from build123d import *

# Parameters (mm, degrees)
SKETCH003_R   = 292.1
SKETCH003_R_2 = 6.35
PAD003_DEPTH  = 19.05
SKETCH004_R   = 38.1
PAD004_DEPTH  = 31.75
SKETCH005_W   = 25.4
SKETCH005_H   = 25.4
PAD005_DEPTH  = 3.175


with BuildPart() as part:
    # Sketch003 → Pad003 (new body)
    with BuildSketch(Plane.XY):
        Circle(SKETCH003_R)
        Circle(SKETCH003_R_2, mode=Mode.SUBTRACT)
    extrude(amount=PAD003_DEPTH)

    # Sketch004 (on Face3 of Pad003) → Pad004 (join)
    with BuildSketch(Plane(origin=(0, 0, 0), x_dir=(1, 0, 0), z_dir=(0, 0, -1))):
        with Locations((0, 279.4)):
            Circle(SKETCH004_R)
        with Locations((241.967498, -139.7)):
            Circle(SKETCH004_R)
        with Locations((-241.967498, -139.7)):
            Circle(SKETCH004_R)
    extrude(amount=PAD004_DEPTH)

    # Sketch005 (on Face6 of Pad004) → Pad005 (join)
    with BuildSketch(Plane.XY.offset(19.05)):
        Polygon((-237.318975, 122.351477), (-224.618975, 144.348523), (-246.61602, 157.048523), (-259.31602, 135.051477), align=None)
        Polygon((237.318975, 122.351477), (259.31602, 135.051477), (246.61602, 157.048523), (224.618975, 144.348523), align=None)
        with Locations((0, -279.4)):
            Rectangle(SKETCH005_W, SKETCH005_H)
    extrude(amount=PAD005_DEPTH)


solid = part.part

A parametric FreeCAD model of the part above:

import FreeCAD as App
import Part
import Sketcher

V = App.Vector
Q = App.Units.Quantity


def add_polygon(sketch, points):
    """Adds a closed chain of lines whose ends are joined by coincident constraints."""
    first, n = sketch.GeometryCount, len(points)
    for a, b in zip(points, points[1:] + points[:1]):
        sketch.addGeometry(Part.LineSegment(App.Vector(*a, 0), App.Vector(*b, 0)), False)
    for i in range(n):
        sketch.addConstraint(Sketcher.Constraint("Coincident", first + i, 2, first + (i + 1) % n, 1))

doc = App.newDocument("Part")
body = doc.addObject("PartDesign::Body", "Body")

# Sketch on XY plane
sketch1 = body.newObject("Sketcher::SketchObject", "Sketch")
sketch1.AttachmentSupport = (doc.getObject("XY_Plane"), [""])
sketch1.MapMode = "FlatFace"
sketch1.addGeometry(Part.Circle(V(0, 0, 0), V(0, 0, 1), 292), False)
sketch1.addGeometry(Part.Circle(V(0, 0, 0), V(0, 0, 1), 6), False)
sketch1.addConstraint(Sketcher.Constraint("Coincident", 0, 3, -1, 1))
sketch1.addConstraint(Sketcher.Constraint("Coincident", 1, 3, -1, 1))
sketch1.addConstraint(Sketcher.Constraint("Diameter", 0, Q("23 in")))
sketch1.addConstraint(Sketcher.Constraint("Diameter", 1, Q("0.5 in")))
pad1 = body.newObject("PartDesign::Pad", "Pad")
pad1.Profile = sketch1
pad1.Length = Q("0.75 in")

# Sketch on XY plane
sketch2 = body.newObject("Sketcher::SketchObject", "Sketch001")
sketch2.AttachmentSupport = (doc.getObject("XY_Plane"), [""])
sketch2.MapMode = "FlatFace"
sketch2.addGeometry(Part.Circle(V(0, -279, 0), V(0, 0, 1), 38), False)
sketch2.addGeometry(Part.Circle(V(242, 140, 0), V(0, 0, 1), 38), False)
sketch2.addGeometry(Part.Circle(V(-242, 140, 0), V(0, 0, 1), 38), False)
sketch2.addConstraint(Sketcher.Constraint("Equal", 0, 1))
sketch2.addConstraint(Sketcher.Constraint("Equal", 1, 2))
sketch2.addConstraint(Sketcher.Constraint("Symmetric", 1, 3, 2, 3, -2))
sketch2.addConstraint(Sketcher.Constraint("PointOnObject", 0, 3, -2))
sketch2.addConstraint(Sketcher.Constraint("Diameter", 0, Q("3 in")))
sketch2.addConstraint(Sketcher.Constraint("DistanceY", 0, 3, -1, 1, Q("11 in")))
sketch2.addConstraint(Sketcher.Constraint("DistanceY", -1, 1, 1, 3, Q("5.5 in")))
sketch2.addConstraint(Sketcher.Constraint("DistanceX", -1, 1, 1, 3, Q("241.967498 mm")))
pad2 = body.newObject("PartDesign::Pad", "Pad001")
pad2.Profile = sketch2
pad2.Length = Q("1.25 in")
pad2.Reversed = True

# Sketch on XY plane
sketch3 = body.newObject("Sketcher::SketchObject", "Sketch002")
sketch3.AttachmentSupport = (doc.getObject("XY_Plane"), [""])
sketch3.MapMode = "FlatFace"
sketch3.AttachmentOffset = App.Placement(V(0, 0, 0.75 * 25.4), App.Rotation())
add_polygon(sketch3, [(-237, 122), (-225, 144), (-247, 157), (-259, 135)])  # lines 0-3
add_polygon(sketch3, [(237, 122), (259, 135), (247, 157), (225, 144)])  # lines 4-7
add_polygon(sketch3, [(-13, -267), (-13, -292), (13, -292), (13, -267)])  # lines 8-11
sketch3.addConstraint(Sketcher.Constraint("Vertical", 8))
sketch3.addConstraint(Sketcher.Constraint("Horizontal", 9))
sketch3.addConstraint(Sketcher.Constraint("Vertical", 10))
sketch3.addConstraint(Sketcher.Constraint("Horizontal", 11))
sketch3.addConstraint(Sketcher.Constraint("Symmetric", 2, 2, 4, 2, -2))
sketch3.addConstraint(Sketcher.Constraint("Symmetric", 1, 2, 5, 2, -2))
sketch3.addConstraint(Sketcher.Constraint("Symmetric", 0, 2, 6, 2, -2))
sketch3.addConstraint(Sketcher.Constraint("Symmetric", 3, 2, 7, 2, -2))
sketch3.addConstraint(Sketcher.Constraint("Perpendicular", 0, 1))
sketch3.addConstraint(Sketcher.Constraint("Perpendicular", 1, 2))
sketch3.addConstraint(Sketcher.Constraint("Perpendicular", 2, 3))
sketch3.addConstraint(Sketcher.Constraint("Equal", 11, 8))
sketch3.addConstraint(Sketcher.Constraint("Equal", 0, 1))
sketch3.addConstraint(Sketcher.Constraint("DistanceX", 9, 1, 9, 2, Q("1 in")))
sketch3.addConstraint(Sketcher.Constraint("Distance", 0, Q("1 in")))
sketch3.addConstraint(Sketcher.Constraint("Angle", 0, Q("60.000001 deg")))
sketch3.addConstraint(Sketcher.Constraint("DistanceX", 8, 2, -1, 1, Q("0.5 in")))
sketch3.addConstraint(Sketcher.Constraint("DistanceY", 8, 2, -1, 1, Q("11.5 in")))
sketch3.addConstraint(Sketcher.Constraint("DistanceX", 1, 2, -1, 1, Q("246.61602 mm")))
sketch3.addConstraint(Sketcher.Constraint("DistanceY", -1, 1, 0, 2, Q("144.348523 mm")))
pad3 = body.newObject("PartDesign::Pad", "Pad002")
pad3.Profile = sketch3
pad3.Length = Q("0.125 in")

doc.recompute()
